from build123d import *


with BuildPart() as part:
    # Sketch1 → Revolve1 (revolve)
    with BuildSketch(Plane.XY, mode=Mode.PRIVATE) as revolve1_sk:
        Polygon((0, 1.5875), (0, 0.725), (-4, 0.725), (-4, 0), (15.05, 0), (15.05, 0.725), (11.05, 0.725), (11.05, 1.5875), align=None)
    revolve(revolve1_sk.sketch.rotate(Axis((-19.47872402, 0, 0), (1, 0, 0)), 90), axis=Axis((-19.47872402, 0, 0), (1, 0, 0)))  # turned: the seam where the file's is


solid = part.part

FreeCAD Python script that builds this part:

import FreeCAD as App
import Part
import Sketcher

doc = App.newDocument("Part")
body = doc.addObject("PartDesign::Body", "Body")

# Sketch on XY plane
sketch1 = doc.addObject("Sketcher::SketchObject", "Sketch")
body.addObject(sketch1)
sketch1.AttachmentSupport = (doc.XY_Plane, [""])
sketch1.MapMode = "FlatFace"
sketch1.addGeometry([
    Part.LineSegment(App.Vector(0, 1.5875, 0), App.Vector(0, 0.725, 0)),  # 0
    Part.LineSegment(App.Vector(0, 0.725, 0), App.Vector(-4, 0.725, 0)),  # 1
    Part.LineSegment(App.Vector(-4, 0.725, 0), App.Vector(-4, 0, 0)),  # 2
    Part.LineSegment(App.Vector(-4, 0, 0), App.Vector(15.05, 0, 0)),  # 3
    Part.LineSegment(App.Vector(15.05, 0, 0), App.Vector(15.05, 0.725, 0)),  # 4
    Part.LineSegment(App.Vector(15.05, 0.725, 0), App.Vector(11.05, 0.725, 0)),  # 5
    Part.LineSegment(App.Vector(11.05, 0.725, 0), App.Vector(11.05, 1.5875, 0)),  # 6
    Part.LineSegment(App.Vector(11.05, 1.5875, 0), App.Vector(0, 1.5875, 0)),  # 7
], False)
sketch1.addConstraint([
    Sketcher.Constraint("Coincident", 0, 2, 1, 1),
    Sketcher.Constraint("Coincident", 1, 2, 2, 1),
    Sketcher.Constraint("Coincident", 2, 2, 3, 1),
    Sketcher.Constraint("Coincident", 3, 2, 4, 1),
    Sketcher.Constraint("Coincident", 4, 2, 5, 1),
    Sketcher.Constraint("Coincident", 5, 2, 6, 1),
    Sketcher.Constraint("Coincident", 6, 2, 7, 1),
    Sketcher.Constraint("Coincident", 7, 2, 0, 1),
    Sketcher.Constraint("Vertical", 0),
    Sketcher.Constraint("Horizontal", 1),
    Sketcher.Constraint("Vertical", 2),
    Sketcher.Constraint("Horizontal", 3),
    Sketcher.Constraint("Vertical", 4),
    Sketcher.Constraint("Horizontal", 5),
    Sketcher.Constraint("Vertical", 6),
    Sketcher.Constraint("Horizontal", 7),
    Sketcher.Constraint("PointOnObject", 0, 2, -2),
    Sketcher.Constraint("PointOnObject", 2, 2, -1),
    Sketcher.Constraint("Horizontal", 1, 2, 4, 2),
    Sketcher.Constraint("Equal", 1, 5),
    Sketcher.Constraint("DistanceX", 1, 2, 1, 1, 4.0),
    Sketcher.Constraint("DistanceX", 3, 1, 3, 2, 19.05),
    Sketcher.Constraint("DistanceY", 2, 2, 2, 1, 0.725),
    Sketcher.Constraint("DistanceY", 0, 2, 0, 1, 0.8625),
])
revolution = doc.addObject("PartDesign::Revolution", "Revolution")
body.addObject(revolution)
revolution.Profile = sketch1
revolution.ReferenceAxis = (sketch1, ["H_Axis"])
revolution.Angle = 360

doc.recompute()
